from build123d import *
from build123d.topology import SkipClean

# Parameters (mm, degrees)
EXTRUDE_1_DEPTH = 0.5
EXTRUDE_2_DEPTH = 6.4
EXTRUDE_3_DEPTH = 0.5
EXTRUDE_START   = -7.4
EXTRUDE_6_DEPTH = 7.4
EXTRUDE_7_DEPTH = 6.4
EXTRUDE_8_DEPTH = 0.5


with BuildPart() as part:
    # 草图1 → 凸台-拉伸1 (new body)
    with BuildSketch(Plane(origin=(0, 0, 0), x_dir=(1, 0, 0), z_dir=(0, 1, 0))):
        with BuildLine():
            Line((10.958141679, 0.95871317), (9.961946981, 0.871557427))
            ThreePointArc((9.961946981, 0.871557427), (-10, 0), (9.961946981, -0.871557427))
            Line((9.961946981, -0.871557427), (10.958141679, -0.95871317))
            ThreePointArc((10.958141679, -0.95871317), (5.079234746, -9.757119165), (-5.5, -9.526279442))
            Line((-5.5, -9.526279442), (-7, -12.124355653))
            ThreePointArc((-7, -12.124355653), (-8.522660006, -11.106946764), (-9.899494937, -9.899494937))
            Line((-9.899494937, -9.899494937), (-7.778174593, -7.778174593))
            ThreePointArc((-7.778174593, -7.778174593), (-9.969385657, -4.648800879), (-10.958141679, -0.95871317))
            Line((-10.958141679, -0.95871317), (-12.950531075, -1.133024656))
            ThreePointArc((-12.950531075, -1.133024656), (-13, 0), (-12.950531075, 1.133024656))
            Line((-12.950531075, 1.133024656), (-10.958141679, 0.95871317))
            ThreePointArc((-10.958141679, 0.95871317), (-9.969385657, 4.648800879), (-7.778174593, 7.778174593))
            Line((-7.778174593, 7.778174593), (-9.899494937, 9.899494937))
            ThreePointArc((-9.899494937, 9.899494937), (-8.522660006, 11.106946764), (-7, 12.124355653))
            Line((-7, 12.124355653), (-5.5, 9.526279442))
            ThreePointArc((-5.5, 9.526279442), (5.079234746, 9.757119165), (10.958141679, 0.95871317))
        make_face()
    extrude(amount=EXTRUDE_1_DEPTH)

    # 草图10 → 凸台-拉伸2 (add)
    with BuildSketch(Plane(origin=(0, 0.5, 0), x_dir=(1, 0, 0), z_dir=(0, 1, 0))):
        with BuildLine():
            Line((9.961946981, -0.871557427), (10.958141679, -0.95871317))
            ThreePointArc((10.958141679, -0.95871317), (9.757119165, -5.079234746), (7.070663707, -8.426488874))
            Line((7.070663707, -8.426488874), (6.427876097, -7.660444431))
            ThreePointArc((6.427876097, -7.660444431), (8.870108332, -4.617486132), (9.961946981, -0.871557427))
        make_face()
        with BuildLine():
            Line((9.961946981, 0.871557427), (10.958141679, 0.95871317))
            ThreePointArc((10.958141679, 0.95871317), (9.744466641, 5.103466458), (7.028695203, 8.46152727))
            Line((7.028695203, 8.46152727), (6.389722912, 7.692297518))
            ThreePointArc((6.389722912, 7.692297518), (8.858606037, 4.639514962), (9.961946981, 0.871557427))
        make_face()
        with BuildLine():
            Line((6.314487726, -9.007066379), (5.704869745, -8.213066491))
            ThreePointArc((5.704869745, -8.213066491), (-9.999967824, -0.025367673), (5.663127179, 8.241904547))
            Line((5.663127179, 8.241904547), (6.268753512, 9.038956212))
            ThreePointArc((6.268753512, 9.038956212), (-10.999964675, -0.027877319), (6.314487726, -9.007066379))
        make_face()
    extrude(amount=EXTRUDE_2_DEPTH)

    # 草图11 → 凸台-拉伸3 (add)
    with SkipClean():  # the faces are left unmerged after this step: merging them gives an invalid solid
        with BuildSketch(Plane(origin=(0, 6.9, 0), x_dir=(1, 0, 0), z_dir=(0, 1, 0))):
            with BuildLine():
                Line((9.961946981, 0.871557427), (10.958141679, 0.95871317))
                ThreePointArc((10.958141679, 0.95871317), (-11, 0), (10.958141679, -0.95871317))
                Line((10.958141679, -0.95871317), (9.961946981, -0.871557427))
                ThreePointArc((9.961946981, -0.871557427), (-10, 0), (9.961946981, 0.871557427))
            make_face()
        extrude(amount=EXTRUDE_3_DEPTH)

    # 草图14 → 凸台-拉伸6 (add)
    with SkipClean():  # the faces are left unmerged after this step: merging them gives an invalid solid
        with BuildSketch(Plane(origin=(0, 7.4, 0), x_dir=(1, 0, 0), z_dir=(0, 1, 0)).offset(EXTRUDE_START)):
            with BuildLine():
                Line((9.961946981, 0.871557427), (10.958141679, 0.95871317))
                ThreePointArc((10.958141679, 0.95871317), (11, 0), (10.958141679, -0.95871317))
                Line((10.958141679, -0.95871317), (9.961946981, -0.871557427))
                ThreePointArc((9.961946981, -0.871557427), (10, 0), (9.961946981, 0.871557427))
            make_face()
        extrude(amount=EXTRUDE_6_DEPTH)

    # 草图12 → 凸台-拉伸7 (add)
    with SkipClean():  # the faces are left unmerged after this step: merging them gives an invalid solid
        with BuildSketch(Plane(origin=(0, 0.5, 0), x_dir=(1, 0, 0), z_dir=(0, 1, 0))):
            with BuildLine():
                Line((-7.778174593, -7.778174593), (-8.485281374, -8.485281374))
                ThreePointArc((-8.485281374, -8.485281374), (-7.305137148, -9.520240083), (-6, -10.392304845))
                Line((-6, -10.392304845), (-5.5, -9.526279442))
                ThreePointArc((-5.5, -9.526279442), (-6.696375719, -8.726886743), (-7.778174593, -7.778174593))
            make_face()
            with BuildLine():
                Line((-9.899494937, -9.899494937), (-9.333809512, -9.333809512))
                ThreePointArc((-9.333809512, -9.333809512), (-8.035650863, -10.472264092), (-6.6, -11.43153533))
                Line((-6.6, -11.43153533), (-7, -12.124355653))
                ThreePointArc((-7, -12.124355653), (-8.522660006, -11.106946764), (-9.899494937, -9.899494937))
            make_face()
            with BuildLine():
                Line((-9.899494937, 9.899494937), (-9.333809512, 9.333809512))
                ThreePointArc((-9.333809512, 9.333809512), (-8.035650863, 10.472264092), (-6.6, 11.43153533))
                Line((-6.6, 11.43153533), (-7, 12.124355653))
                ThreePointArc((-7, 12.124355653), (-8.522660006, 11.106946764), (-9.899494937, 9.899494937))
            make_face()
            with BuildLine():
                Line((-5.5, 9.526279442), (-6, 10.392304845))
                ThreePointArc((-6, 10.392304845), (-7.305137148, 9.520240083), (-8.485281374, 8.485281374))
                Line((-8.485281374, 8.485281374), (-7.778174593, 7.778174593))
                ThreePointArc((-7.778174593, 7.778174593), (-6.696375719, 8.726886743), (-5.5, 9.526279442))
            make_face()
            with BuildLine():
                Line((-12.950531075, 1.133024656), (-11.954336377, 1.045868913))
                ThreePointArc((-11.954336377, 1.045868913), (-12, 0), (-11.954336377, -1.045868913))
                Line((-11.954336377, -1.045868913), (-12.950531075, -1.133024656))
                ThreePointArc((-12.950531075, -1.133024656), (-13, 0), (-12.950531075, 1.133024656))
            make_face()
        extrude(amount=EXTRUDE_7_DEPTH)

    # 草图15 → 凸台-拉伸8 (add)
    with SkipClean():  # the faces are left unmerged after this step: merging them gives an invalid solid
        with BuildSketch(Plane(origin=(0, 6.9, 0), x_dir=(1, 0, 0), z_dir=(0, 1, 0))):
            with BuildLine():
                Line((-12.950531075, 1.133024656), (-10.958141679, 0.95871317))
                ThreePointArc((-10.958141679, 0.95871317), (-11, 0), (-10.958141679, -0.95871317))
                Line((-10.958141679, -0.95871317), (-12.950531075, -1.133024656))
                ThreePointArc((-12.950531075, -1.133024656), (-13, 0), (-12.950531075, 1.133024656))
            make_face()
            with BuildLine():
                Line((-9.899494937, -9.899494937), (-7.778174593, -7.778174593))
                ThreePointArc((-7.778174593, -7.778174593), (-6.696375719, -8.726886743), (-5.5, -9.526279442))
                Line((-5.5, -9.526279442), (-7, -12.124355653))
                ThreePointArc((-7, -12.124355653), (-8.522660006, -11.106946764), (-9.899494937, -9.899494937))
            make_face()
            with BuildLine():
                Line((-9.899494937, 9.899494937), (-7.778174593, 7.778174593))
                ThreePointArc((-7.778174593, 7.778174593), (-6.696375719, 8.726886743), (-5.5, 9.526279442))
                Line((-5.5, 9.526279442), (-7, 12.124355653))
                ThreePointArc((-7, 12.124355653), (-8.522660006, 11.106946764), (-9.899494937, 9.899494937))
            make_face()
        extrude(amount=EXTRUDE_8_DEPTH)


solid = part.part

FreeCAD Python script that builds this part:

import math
import FreeCAD as App
import Part
import Sketcher

V = App.Vector
Q = App.Units.Quantity

doc = App.newDocument("Part")
params = doc.addObject("Spreadsheet::Sheet", "Params")
for row, (alias, value) in enumerate([
    ("sketch1_radius", "11 mm"),
    ("sketch1_radius2", "14 mm"),
    ("sketch1_radius3", "13 mm"),
    ("sketch1_radius4", "10 mm"),
    ("pad1_length", "0.5 mm"),
    ("sketch2_radius", "10 mm"),
    ("sketch2_radius2", "11 mm"),
    ("pad2_length", "6.4 mm"),
    ("sketch3_radius", "11 mm"),
    ("sketch3_radius2", "10 mm"),
    ("pad3_length", "0.5 mm"),
    ("sketch4_radius", "10 mm"),
    ("sketch4_radius2", "11 mm"),
    ("pad4_length", "7.4 mm"),
    ("sketch5_radius", "12 mm"),
    ("sketch5_radius2", "11 mm"),
    ("sketch5_radius3", "14 mm"),
    ("sketch5_radius4", "13.2 mm"),
    ("pad5_length", "6.4 mm"),
    ("sketch6_radius", "13 mm"),
    ("sketch6_radius2", "11 mm"),
    ("sketch6_radius3", "14 mm"),
    ("pad6_length", "0.5 mm"),
], start=1):
    params.set(f"A{row}", alias)
    params.set(f"B{row}", "=" + value)
    params.setAlias(f"B{row}", alias)

body = doc.addObject("PartDesign::Body", "Body")

# Sketch on XZ plane
sketch1 = body.newObject("Sketcher::SketchObject", "Sketch")
sketch1.AttachmentSupport = (doc.getObject("XZ_Plane"), [""])
sketch1.MapMode = "FlatFace"
sketch1.addGeometry([
    Part.LineSegment(V(10, -0.9, 0), V(11, -1, 0)),  # 0
    Part.ArcOfCircle(Part.Circle(V(0, 0, 0), V(0, 0, 1), 11), math.radians(-120), math.radians(-5)),  # 1
    Part.LineSegment(V(-5.5, -9.5, 0), V(-7, -12.1, 0)),  # 2
    Part.ArcOfCircle(Part.Circle(V(0, 0, 0), V(0, 0, 1), 14), math.radians(-135), math.radians(-120)),  # 3
    Part.LineSegment(V(-9.9, -9.9, 0), V(-7.8, -7.8, 0)),  # 4
    Part.ArcOfCircle(Part.Circle(V(0, 0, 0), V(0, 0, 1), 11), math.radians(-175), math.radians(-135)),  # 5
    Part.LineSegment(V(-11, -1, 0), V(-13, -1.1, 0)),  # 6
    Part.ArcOfCircle(Part.Circle(V(0, 0, 0), V(0, 0, 1), 13), math.radians(175), math.radians(185)),  # 7
    Part.LineSegment(V(-13, 1.1, 0), V(-11, 1, 0)),  # 8
    Part.ArcOfCircle(Part.Circle(V(0, 0, 0), V(0, 0, 1), 11), math.radians(135), math.radians(175)),  # 9
    Part.LineSegment(V(-7.8, 7.8, 0), V(-9.9, 9.9, 0)),  # 10
    Part.ArcOfCircle(Part.Circle(V(0, 0, 0), V(0, 0, 1), 14), math.radians(120), math.radians(135)),  # 11
    Part.LineSegment(V(-7, 12.1, 0), V(-5.5, 9.5, 0)),  # 12
    Part.ArcOfCircle(Part.Circle(V(0, 0, 0), V(0, 0, 1), 11), math.radians(5), math.radians(120)),  # 13
    Part.LineSegment(V(11, 1, 0), V(10, 0.9, 0)),  # 14
    Part.ArcOfCircle(Part.Circle(V(0, 0, 0), V(0, 0, 1), 10), math.radians(5), math.radians(355)),  # 15
], False)
sketch1.addConstraint([
    Sketcher.Constraint("Coincident", 0, 2, 1, 2),
    Sketcher.Constraint("Coincident", 1, 1, 2, 1),
    Sketcher.Constraint("Coincident", 2, 2, 3, 2),
    Sketcher.Constraint("Coincident", 3, 1, 4, 1),
    Sketcher.Constraint("Coincident", 4, 2, 5, 2),
    Sketcher.Constraint("Coincident", 5, 1, 6, 1),
    Sketcher.Constraint("Coincident", 6, 2, 7, 2),
    Sketcher.Constraint("Coincident", 7, 1, 8, 1),
    Sketcher.Constraint("Coincident", 8, 2, 9, 2),
    Sketcher.Constraint("Coincident", 9, 1, 10, 1),
    Sketcher.Constraint("Coincident", 10, 2, 11, 2),
    Sketcher.Constraint("Coincident", 11, 1, 12, 1),
    Sketcher.Constraint("Coincident", 12, 2, 13, 2),
    Sketcher.Constraint("Coincident", 13, 1, 14, 1),
    Sketcher.Constraint("Coincident", 14, 2, 15, 1),
    Sketcher.Constraint("Coincident", 15, 2, 0, 1),
    Sketcher.Constraint("Coincident", 1, 3, -1, 1),
    Sketcher.Constraint("Coincident", 3, 3, -1, 1),
    Sketcher.Constraint("Coincident", 5, 3, -1, 1),
    Sketcher.Constraint("Coincident", 7, 3, -1, 1),
    Sketcher.Constraint("Coincident", 9, 3, -1, 1),
    Sketcher.Constraint("Coincident", 11, 3, -1, 1),
    Sketcher.Constraint("Coincident", 13, 3, -1, 1),
    Sketcher.Constraint("Coincident", 15, 3, -1, 1),
    Sketcher.Constraint("Equal", 1, 5),
    Sketcher.Constraint("Equal", 5, 9),
    Sketcher.Constraint("Equal", 3, 11),
    Sketcher.Constraint("Equal", 9, 13),
    Sketcher.Constraint("Parallel", 0, 8),
    Sketcher.Constraint("Perpendicular", 4, 10),
    Sketcher.Constraint("Parallel", 6, 14),
    Sketcher.Constraint("Horizontal", 0, 2, 5, 1),
    Sketcher.Constraint("Horizontal", 8, 2, 13, 1),
    Sketcher.Constraint("Vertical", 6, 2, 7, 1),
    Sketcher.Constraint("Vertical", 5, 1, 8, 2),
    Sketcher.Constraint("Vertical", 4, 2, 9, 1),
    Sketcher.Constraint("Vertical", 3, 1, 10, 2),
    Sketcher.Constraint("Vertical", 2, 2, 11, 1),
    Sketcher.Constraint("Vertical", 1, 1, 12, 2),
    Sketcher.Constraint("Radius", 1, Q("11 mm")),
    Sketcher.Constraint("Radius", 3, Q("14 mm")),
    Sketcher.Constraint("Radius", 7, Q("13 mm")),
    Sketcher.Constraint("Radius", 15, Q("10 mm")),
    Sketcher.Constraint("Angle", 0, Q("-5 deg")),
    Sketcher.Constraint("Angle", 2, Q("-120 deg")),
    Sketcher.Constraint("DistanceX", 2, 2, -1, 1, Q("7 mm")),
    Sketcher.Constraint("DistanceY", 4, 2, 7, 1, Q("8.911199 mm")),
    Sketcher.Constraint("DistanceX", -1, 1, 0, 2, Q("10.958142 mm")),
])
sketch1.setExpression("Constraints[39]", "Params.sketch1_radius")
sketch1.setExpression("Constraints[40]", "Params.sketch1_radius2")
sketch1.setExpression("Constraints[41]", "Params.sketch1_radius3")
sketch1.setExpression("Constraints[42]", "Params.sketch1_radius4")
pad1 = body.newObject("PartDesign::Pad", "Pad")
pad1.Profile = sketch1
pad1.setExpression("Length", "Params.pad1_length")
pad1.Reversed = True

# Sketch on XZ plane
sketch2 = body.newObject("Sketcher::SketchObject", "Sketch001")
sketch2.AttachmentSupport = (doc.getObject("XZ_Plane"), [""])
sketch2.MapMode = "FlatFace"
sketch2.AttachmentOffset = App.Placement(V(0, 0, -0.5), App.Rotation())
sketch2.addGeometry([
    Part.LineSegment(V(11, 1, 0), V(10, 0.9, 0)),  # 0
    Part.ArcOfCircle(Part.Circle(V(0, 0, 0), V(0, 0, 1), 10), math.radians(5), math.radians(50)),  # 1
    Part.LineSegment(V(6.4, 7.7, 0), V(7.1, 8.4, 0)),  # 2
    Part.ArcOfCircle(Part.Circle(V(0, 0, 0), V(0, 0, 1), 11), math.radians(5), math.radians(50)),  # 3
    Part.LineSegment(V(10, -0.9, 0), V(11, -1, 0)),  # 4
    Part.ArcOfCircle(Part.Circle(V(0, 0, 0), V(0, 0, 1), 11), math.radians(-50), math.radians(-5)),  # 5
    Part.LineSegment(V(7, -8.5, 0), V(6.4, -7.7, 0)),  # 6
    Part.ArcOfCircle(Part.Circle(V(0, 0, 0), V(0, 0, 1), 10), math.radians(-50), math.radians(-5)),  # 7
    Part.LineSegment(V(6.3, 9, 0), V(5.7, 8.2, 0)),  # 8
    Part.ArcOfCircle(Part.Circle(V(0, 0, 0), V(0, 0, 1), 10), math.radians(55), math.radians(304)),  # 9
    Part.LineSegment(V(5.7, -8.2, 0), V(6.3, -9, 0)),  # 10
    Part.ArcOfCircle(Part.Circle(V(0, 0, 0), V(0, 0, 1), 11), math.radians(55), math.radians(305)),  # 11
], False)
sketch2.addConstraint([
    Sketcher.Constraint("Coincident", 0, 2, 1, 1),
    Sketcher.Constraint("Coincident", 1, 2, 2, 1),
    Sketcher.Constraint("Coincident", 2, 2, 3, 2),
    Sketcher.Constraint("Coincident", 3, 1, 0, 1),
    Sketcher.Constraint("Coincident", 4, 2, 5, 2),
    Sketcher.Constraint("Coincident", 5, 1, 6, 1),
    Sketcher.Constraint("Coincident", 6, 2, 7, 1),
    Sketcher.Constraint("Coincident", 7, 2, 4, 1),
    Sketcher.Constraint("Coincident", 8, 2, 9, 1),
    Sketcher.Constraint("Coincident", 9, 2, 10, 1),
    Sketcher.Constraint("Coincident", 10, 2, 11, 2),
    Sketcher.Constraint("Coincident", 11, 1, 8, 1),
    Sketcher.Constraint("Coincident", 1, 3, -1, 1),
    Sketcher.Constraint("Coincident", 3, 3, -1, 1),
    Sketcher.Constraint("Coincident", 5, 3, -1, 1),
    Sketcher.Constraint("Coincident", 7, 3, -1, 1),
    Sketcher.Constraint("Coincident", 9, 3, -1, 1),
    Sketcher.Constraint("Coincident", 11, 3, -1, 1),
    Sketcher.Constraint("Equal", 3, 5),
    Sketcher.Constraint("Equal", 1, 7),
    Sketcher.Constraint("Equal", 7, 9),
    Sketcher.Constraint("Equal", 5, 11),
    Sketcher.Constraint("Vertical", 3, 1, 4, 2),
    Sketcher.Constraint("Vertical", 0, 2, 7, 2),
    Sketcher.Constraint("Radius", 1, Q("10 mm")),
    Sketcher.Constraint("Radius", 3, Q("11 mm")),
    Sketcher.Constraint("Angle", 0, Q("-175 deg")),
    Sketcher.Constraint("Angle", 2, Q("50 deg")),
    Sketcher.Constraint("DistanceY", 8, 2, 11, 1, Q("0.794 mm")),
    Sketcher.Constraint("DistanceY", 10, 2, 7, 2, Q("8.167399 mm")),
    Sketcher.Constraint("DistanceY", -1, 1, 2, 2, Q("8.426489 mm")),
    Sketcher.Constraint("DistanceX", -1, 1, 3, 1, Q("10.958142 mm")),
    Sketcher.Constraint("DistanceX", -1, 1, 8, 2, Q("5.70487 mm")),
    Sketcher.Constraint("DistanceX", 5, 1, 0, 2, Q("2.933252 mm")),
    Sketcher.Constraint("DistanceY", 5, 1, 6, 2, Q("0.76923 mm")),
    Sketcher.Constraint("DistanceX", 9, 2, 5, 1, Q("1.365568 mm")),
])
sketch2.setExpression("Constraints[24]", "Params.sketch2_radius")
sketch2.setExpression("Constraints[25]", "Params.sketch2_radius2")
pad2 = body.newObject("PartDesign::Pad", "Pad001")
pad2.Profile = sketch2
pad2.setExpression("Length", "Params.pad2_length")
pad2.Reversed = True

# Sketch on XZ plane
sketch3 = body.newObject("Sketcher::SketchObject", "Sketch002")
sketch3.AttachmentSupport = (doc.getObject("XZ_Plane"), [""])
sketch3.MapMode = "FlatFace"
sketch3.AttachmentOffset = App.Placement(V(0, 0, -6.9), App.Rotation())
sketch3.addGeometry([
    Part.LineSegment(V(10, -0.9, 0), V(11, -1, 0)),
    Part.ArcOfCircle(Part.Circle(V(0, 0, 0), V(0, 0, 1), 11), math.radians(5), math.radians(355)),
    Part.LineSegment(V(11, 1, 0), V(10, 0.9, 0)),
    Part.ArcOfCircle(Part.Circle(V(0, 0, 0), V(0, 0, 1), 10), math.radians(5), math.radians(355)),
], False)
sketch3.addConstraint([
    Sketcher.Constraint("Coincident", 0, 2, 1, 2),
    Sketcher.Constraint("Coincident", 1, 1, 2, 1),
    Sketcher.Constraint("Coincident", 2, 2, 3, 1),
    Sketcher.Constraint("Coincident", 3, 2, 0, 1),
    Sketcher.Constraint("Coincident", 1, 3, -1, 1),
    Sketcher.Constraint("Coincident", 3, 3, -1, 1),
    Sketcher.Constraint("Vertical", 0, 2, 1, 1),
    Sketcher.Constraint("Vertical", 2, 2, 3, 2),
    Sketcher.Constraint("Radius", 1, Q("11 mm")),
    Sketcher.Constraint("Radius", 3, Q("10 mm")),
    Sketcher.Constraint("Angle", 0, Q("-5 deg")),
    Sketcher.Constraint("DistanceX", -1, 1, 0, 2, Q("10.958142 mm")),
])
sketch3.setExpression("Constraints[8]", "Params.sketch3_radius")
sketch3.setExpression("Constraints[9]", "Params.sketch3_radius2")
pad3 = body.newObject("PartDesign::Pad", "Pad002")
pad3.Profile = sketch3
pad3.setExpression("Length", "Params.pad3_length")
pad3.Reversed = True

# Sketch on XZ plane
sketch4 = body.newObject("Sketcher::SketchObject", "Sketch003")
sketch4.AttachmentSupport = (doc.getObject("XZ_Plane"), [""])
sketch4.MapMode = "FlatFace"
sketch4.addGeometry([
    Part.LineSegment(V(11, -1, 0), V(10, -0.9, 0)),
    Part.ArcOfCircle(Part.Circle(V(0, 0, 0), V(0, 0, 1), 10), math.radians(-5), math.radians(5)),
    Part.LineSegment(V(10, 0.9, 0), V(11, 1, 0)),
    Part.ArcOfCircle(Part.Circle(V(0, 0, 0), V(0, 0, 1), 11), math.radians(-5), math.radians(5)),
], False)
sketch4.addConstraint([
    Sketcher.Constraint("Coincident", 0, 2, 1, 1),
    Sketcher.Constraint("Coincident", 1, 2, 2, 1),
    Sketcher.Constraint("Coincident", 2, 2, 3, 2),
    Sketcher.Constraint("Coincident", 3, 1, 0, 1),
    Sketcher.Constraint("Coincident", 1, 3, -1, 1),
    Sketcher.Constraint("Coincident", 3, 3, -1, 1),
    Sketcher.Constraint("Vertical", 0, 2, 1, 2),
    Sketcher.Constraint("Vertical", 2, 2, 3, 1),
    Sketcher.Constraint("Radius", 1, Q("10 mm")),
    Sketcher.Constraint("Radius", 3, Q("11 mm")),
    Sketcher.Constraint("Angle", 0, Q("175 deg")),
    Sketcher.Constraint("DistanceX", -1, 1, 2, 2, Q("10.958142 mm")),
])
sketch4.setExpression("Constraints[8]", "Params.sketch4_radius")
sketch4.setExpression("Constraints[9]", "Params.sketch4_radius2")
pad4 = body.newObject("PartDesign::Pad", "Pad003")
pad4.Profile = sketch4
pad4.setExpression("Length", "Params.pad4_length")
pad4.Reversed = True

# Sketch on XZ plane
sketch5 = body.newObject("Sketcher::SketchObject", "Sketch004")
sketch5.AttachmentSupport = (doc.getObject("XZ_Plane"), [""])
sketch5.MapMode = "FlatFace"
sketch5.AttachmentOffset = App.Placement(V(0, 0, -0.5), App.Rotation())
sketch5.addGeometry([
    Part.LineSegment(V(-7.8, 7.8, 0), V(-8.5, 8.5, 0)),  # 0
    Part.ArcOfCircle(Part.Circle(V(0, 0, 0), V(0, 0, 1), 12), math.radians(120), math.radians(135)),  # 1
    Part.LineSegment(V(-6, 10.4, 0), V(-5.5, 9.5, 0)),  # 2
    Part.ArcOfCircle(Part.Circle(V(0, 0, 0), V(0, 0, 1), 11), math.radians(120), math.radians(135)),  # 3
    Part.LineSegment(V(-9.3, 9.3, 0), V(-9.9, 9.9, 0)),  # 4
    Part.ArcOfCircle(Part.Circle(V(0, 0, 0), V(0, 0, 1), 14), math.radians(120), math.radians(135)),  # 5
    Part.LineSegment(V(-7, 12.1, 0), V(-6.6, 11.4, 0)),  # 6
    Part.ArcOfCircle(Part.Circle(V(0, 0, 0), V(0, 0, 1), 13.2), math.radians(120), math.radians(135)),  # 7
    Part.LineSegment(V(-9.9, -9.9, 0), V(-9.3, -9.3, 0)),  # 8
    Part.ArcOfCircle(Part.Circle(V(0, 0, 0), V(0, 0, 1), 13.2), math.radians(-135), math.radians(-120)),  # 9
    Part.LineSegment(V(-6.6, -11.4, 0), V(-7, -12.1, 0)),  # 10
    Part.ArcOfCircle(Part.Circle(V(0, 0, 0), V(0, 0, 1), 14), math.radians(-135), math.radians(-120)),  # 11
    Part.LineSegment(V(-5.5, -9.5, 0), V(-6, -10.4, 0)),  # 12
    Part.ArcOfCircle(Part.Circle(V(0, 0, 0), V(0, 0, 1), 12), math.radians(-135), math.radians(-120)),  # 13
    Part.LineSegment(V(-8.5, -8.5, 0), V(-7.8, -7.8, 0)),  # 14
    Part.ArcOfCircle(Part.Circle(V(0, 0, 0), V(0, 0, 1), 11), math.radians(-135), math.radians(-120)),  # 15
    Part.LineSegment(V(-12, -1, 0), V(-13, -1.1, 0)),  # 16
    Part.ArcOfCircle(Part.Circle(V(0, 0, 0), V(0, 0, 1), 13), math.radians(175), math.radians(185)),  # 17
    Part.LineSegment(V(-13, 1.1, 0), V(-12, 1, 0)),  # 18
    Part.ArcOfCircle(Part.Circle(V(0, 0, 0), V(0, 0, 1), 12), math.radians(175), math.radians(185)),  # 19
], False)
sketch5.addConstraint([
    Sketcher.Constraint("Coincident", 0, 2, 1, 2),
    Sketcher.Constraint("Coincident", 1, 1, 2, 1),
    Sketcher.Constraint("Coincident", 2, 2, 3, 1),
    Sketcher.Constraint("Coincident", 3, 2, 0, 1),
    Sketcher.Constraint("Coincident", 4, 2, 5, 2),
    Sketcher.Constraint("Coincident", 5, 1, 6, 1),
    Sketcher.Constraint("Coincident", 6, 2, 7, 1),
    Sketcher.Constraint("Coincident", 7, 2, 4, 1),
    Sketcher.Constraint("Coincident", 8, 2, 9, 1),
    Sketcher.Constraint("Coincident", 9, 2, 10, 1),
    Sketcher.Constraint("Coincident", 10, 2, 11, 2),
    Sketcher.Constraint("Coincident", 11, 1, 8, 1),
    Sketcher.Constraint("Coincident", 12, 2, 13, 2),
    Sketcher.Constraint("Coincident", 13, 1, 14, 1),
    Sketcher.Constraint("Coincident", 14, 2, 15, 1),
    Sketcher.Constraint("Coincident", 15, 2, 12, 1),
    Sketcher.Constraint("Coincident", 16, 2, 17, 2),
    Sketcher.Constraint("Coincident", 17, 1, 18, 1),
    Sketcher.Constraint("Coincident", 18, 2, 19, 1),
    Sketcher.Constraint("Coincident", 19, 2, 16, 1),
    Sketcher.Constraint("Coincident", 1, 3, -1, 1),
    Sketcher.Constraint("Coincident", 3, 3, -1, 1),
    Sketcher.Constraint("Coincident", 5, 3, -1, 1),
    Sketcher.Constraint("Coincident", 7, 3, -1, 1),
    Sketcher.Constraint("Coincident", 9, 3, -1, 1),
    Sketcher.Constraint("Coincident", 11, 3, -1, 1),
    Sketcher.Constraint("Coincident", 13, 3, -1, 1),
    Sketcher.Constraint("Coincident", 15, 3, -1, 1),
    Sketcher.Constraint("Coincident", 17, 3, -1, 1),
    Sketcher.Constraint("Coincident", 19, 3, -1, 1),
    Sketcher.Constraint("Equal", 7, 9),
    Sketcher.Constraint("Equal", 5, 11),
    Sketcher.Constraint("Equal", 1, 13),
    Sketcher.Constraint("Equal", 3, 15),
    Sketcher.Constraint("Equal", 13, 19),
    Sketcher.Constraint("Parallel", 0, 4),
    Sketcher.Constraint("Parallel", 2, 6),
    Sketcher.Constraint("Perpendicular", 4, 8),
    Sketcher.Constraint("Parallel", 10, 12),
    Sketcher.Constraint("Parallel", 8, 14),
    Sketcher.Constraint("Vertical", 7, 2, 8, 2),
    Sketcher.Constraint("Vertical", 6, 2, 9, 2),
    Sketcher.Constraint("Vertical", 5, 1, 10, 2),
    Sketcher.Constraint("Vertical", 4, 2, 11, 1),
    Sketcher.Constraint("Vertical", 1, 1, 12, 2),
    Sketcher.Constraint("Vertical", 0, 2, 13, 1),
    Sketcher.Constraint("Vertical", 16, 2, 17, 1),
    Sketcher.Constraint("Vertical", 18, 2, 19, 2),
    Sketcher.Constraint("Equal", 14, 16),
    Sketcher.Constraint("Radius", 1, Q("12 mm")),
    Sketcher.Constraint("Radius", 3, Q("11 mm")),
    Sketcher.Constraint("Radius", 5, Q("14 mm")),
    Sketcher.Constraint("Radius", 7, Q("13.2 mm")),
    Sketcher.Constraint("Angle", 2, Q("-60 deg")),
    Sketcher.Constraint("Angle", 16, Q("-175 deg")),
    Sketcher.Constraint("DistanceX", 1, 1, -1, 1, Q("6 mm")),
    Sketcher.Constraint("DistanceX", 5, 1, -1, 1, Q("7 mm")),
    Sketcher.Constraint("DistanceY", 0, 2, 2, 2, Q("1.040998 mm")),
    Sketcher.Constraint("DistanceY", 16, 2, 3, 2, Q("8.911199 mm")),
    Sketcher.Constraint("DistanceX", 7, 2, -1, 1, Q("9.33381 mm")),
])
sketch5.setExpression("Constraints[49]", "Params.sketch5_radius")
sketch5.setExpression("Constraints[50]", "Params.sketch5_radius2")
sketch5.setExpression("Constraints[51]", "Params.sketch5_radius3")
sketch5.setExpression("Constraints[52]", "Params.sketch5_radius4")
pad5 = body.newObject("PartDesign::Pad", "Pad004")
pad5.Profile = sketch5
pad5.setExpression("Length", "Params.pad5_length")
pad5.Reversed = True

# Sketch on XZ plane
sketch6 = body.newObject("Sketcher::SketchObject", "Sketch005")
sketch6.AttachmentSupport = (doc.getObject("XZ_Plane"), [""])
sketch6.MapMode = "FlatFace"
sketch6.AttachmentOffset = App.Placement(V(0, 0, -6.9), App.Rotation())
sketch6.addGeometry([
    Part.LineSegment(V(-11, -1, 0), V(-13, -1.1, 0)),  # 0
    Part.ArcOfCircle(Part.Circle(V(0, 0, 0), V(0, 0, 1), 13), math.radians(175), math.radians(185)),  # 1
    Part.LineSegment(V(-13, 1.1, 0), V(-11, 1, 0)),  # 2
    Part.ArcOfCircle(Part.Circle(V(0, 0, 0), V(0, 0, 1), 11), math.radians(175), math.radians(185)),  # 3
    Part.LineSegment(V(-7.8, 7.8, 0), V(-9.9, 9.9, 0)),  # 4
    Part.ArcOfCircle(Part.Circle(V(0, 0, 0), V(0, 0, 1), 14), math.radians(120), math.radians(135)),  # 5
    Part.LineSegment(V(-7, 12.1, 0), V(-5.5, 9.5, 0)),  # 6
    Part.ArcOfCircle(Part.Circle(V(0, 0, 0), V(0, 0, 1), 11), math.radians(120), math.radians(135)),  # 7
    Part.LineSegment(V(-9.9, -9.9, 0), V(-7.8, -7.8, 0)),  # 8
    Part.ArcOfCircle(Part.Circle(V(0, 0, 0), V(0, 0, 1), 11), math.radians(-135), math.radians(-120)),  # 9
    Part.LineSegment(V(-5.5, -9.5, 0), V(-7, -12.1, 0)),  # 10
    Part.ArcOfCircle(Part.Circle(V(0, 0, 0), V(0, 0, 1), 14), math.radians(-135), math.radians(-120)),  # 11
], False)
sketch6.addConstraint([
    Sketcher.Constraint("Coincident", 0, 2, 1, 2),
    Sketcher.Constraint("Coincident", 1, 1, 2, 1),
    Sketcher.Constraint("Coincident", 2, 2, 3, 1),
    Sketcher.Constraint("Coincident", 3, 2, 0, 1),
    Sketcher.Constraint("Coincident", 4, 2, 5, 2),
    Sketcher.Constraint("Coincident", 5, 1, 6, 1),
    Sketcher.Constraint("Coincident", 6, 2, 7, 1),
    Sketcher.Constraint("Coincident", 7, 2, 4, 1),
    Sketcher.Constraint("Coincident", 8, 2, 9, 1),
    Sketcher.Constraint("Coincident", 9, 2, 10, 1),
    Sketcher.Constraint("Coincident", 10, 2, 11, 2),
    Sketcher.Constraint("Coincident", 11, 1, 8, 1),
    Sketcher.Constraint("Coincident", 1, 3, -1, 1),
    Sketcher.Constraint("Coincident", 3, 3, -1, 1),
    Sketcher.Constraint("Coincident", 5, 3, -1, 1),
    Sketcher.Constraint("Coincident", 7, 3, -1, 1),
    Sketcher.Constraint("Coincident", 9, 3, -1, 1),
    Sketcher.Constraint("Coincident", 11, 3, -1, 1),
    Sketcher.Constraint("Equal", 3, 7),
    Sketcher.Constraint("Equal", 7, 9),
    Sketcher.Constraint("Equal", 5, 11),
    Sketcher.Constraint("Perpendicular", 4, 8),
    Sketcher.Constraint("Vertical", 0, 2, 1, 1),
    Sketcher.Constraint("Vertical", 2, 2, 3, 2),
    Sketcher.Constraint("Vertical", 7, 2, 8, 2),
    Sketcher.Constraint("Vertical", 6, 2, 9, 2),
    Sketcher.Constraint("Vertical", 5, 1, 10, 2),
    Sketcher.Constraint("Vertical", 4, 2, 11, 1),
    Sketcher.Constraint("Radius", 1, Q("13 mm")),
    Sketcher.Constraint("Radius", 3, Q("11 mm")),
    Sketcher.Constraint("Radius", 5, Q("14 mm")),
    Sketcher.Constraint("Angle", 0, Q("-175 deg")),
    Sketcher.Constraint("Angle", 6, Q("-60 deg")),
    Sketcher.Constraint("DistanceX", 5, 1, -1, 1, Q("7 mm")),
    Sketcher.Constraint("DistanceY", 8, 2, 1, 1, Q("8.911199 mm")),
    Sketcher.Constraint("DistanceX", 0, 2, -1, 1, Q("12.950531 mm")),
])
sketch6.setExpression("Constraints[28]", "Params.sketch6_radius")
sketch6.setExpression("Constraints[29]", "Params.sketch6_radius2")
sketch6.setExpression("Constraints[30]", "Params.sketch6_radius3")
pad6 = body.newObject("PartDesign::Pad", "Pad005")
pad6.Profile = sketch6
pad6.setExpression("Length", "Params.pad6_length")
pad6.Reversed = True

doc.recompute()
